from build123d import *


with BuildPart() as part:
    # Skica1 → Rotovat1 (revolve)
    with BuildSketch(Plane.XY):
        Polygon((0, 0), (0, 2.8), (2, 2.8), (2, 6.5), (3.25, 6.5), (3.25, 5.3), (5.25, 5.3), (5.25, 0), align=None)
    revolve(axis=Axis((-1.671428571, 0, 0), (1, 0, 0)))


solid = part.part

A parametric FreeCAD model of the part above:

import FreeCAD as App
import Part
import Sketcher
from FreeCAD import Vector
Q = App.Units.Quantity


def add_polygon(sketch, points):
    """Adds a closed chain of lines whose ends are joined by coincident constraints."""
    first, n = sketch.GeometryCount, len(points)
    for a, b in zip(points, points[1:] + points[:1]):
        sketch.addGeometry(Part.LineSegment(App.Vector(*a, 0), App.Vector(*b, 0)), False)
    for i in range(n):
        sketch.addConstraint(Sketcher.Constraint("Coincident", first + i, 2, first + (i + 1) % n, 1))

doc = App.newDocument("Part")
body = doc.addObject("PartDesign::Body", "Body")

# Sketch on XY plane
sketch1 = body.newObject("Sketcher::SketchObject", "Sketch")
sketch1.AttachmentSupport = (doc.getObject("XY_Plane"), [""])
sketch1.MapMode = "FlatFace"
add_polygon(sketch1, [(0, 2.8), (0, 0), (5.25, 0), (5.25, 5.3), (3.25, 5.3), (3.25, 6.5), (2, 6.5), (2, 2.8)])  # lines 0-7
sketch1.addConstraint(Sketcher.Constraint("Vertical", 0))
sketch1.addConstraint(Sketcher.Constraint("Horizontal", 1))
sketch1.addConstraint(Sketcher.Constraint("Vertical", 2))
sketch1.addConstraint(Sketcher.Constraint("Horizontal", 3))
sketch1.addConstraint(Sketcher.Constraint("Vertical", 4))
sketch1.addConstraint(Sketcher.Constraint("Horizontal", 5))
sketch1.addConstraint(Sketcher.Constraint("Vertical", 6))
sketch1.addConstraint(Sketcher.Constraint("Horizontal", 7))
sketch1.addConstraint(Sketcher.Constraint("Coincident", 0, 2, -1, 1))
sketch1.addConstraint(Sketcher.Constraint("Equal", 3, 7))
sketch1.addConstraint(Sketcher.Constraint("DistanceX", 3, 2, 3, 1, Q("2 mm")))
sketch1.addConstraint(Sketcher.Constraint("DistanceY", 0, 2, 0, 1, Q("2.8 mm")))
sketch1.addConstraint(Sketcher.Constraint("DistanceY", 2, 1, 2, 2, Q("5.3 mm")))
sketch1.addConstraint(Sketcher.Constraint("DistanceY", 4, 1, 4, 2, Q("1.2 mm")))
sketch1.addConstraint(Sketcher.Constraint("DistanceX", 1, 1, 1, 2, Q("5.25 mm")))
revolution = body.newObject("PartDesign::Revolution", "Revolution")
revolution.Profile = sketch1
revolution.ReferenceAxis = (sketch1, ["H_Axis"])
revolution.Angle = 360

doc.recompute()
